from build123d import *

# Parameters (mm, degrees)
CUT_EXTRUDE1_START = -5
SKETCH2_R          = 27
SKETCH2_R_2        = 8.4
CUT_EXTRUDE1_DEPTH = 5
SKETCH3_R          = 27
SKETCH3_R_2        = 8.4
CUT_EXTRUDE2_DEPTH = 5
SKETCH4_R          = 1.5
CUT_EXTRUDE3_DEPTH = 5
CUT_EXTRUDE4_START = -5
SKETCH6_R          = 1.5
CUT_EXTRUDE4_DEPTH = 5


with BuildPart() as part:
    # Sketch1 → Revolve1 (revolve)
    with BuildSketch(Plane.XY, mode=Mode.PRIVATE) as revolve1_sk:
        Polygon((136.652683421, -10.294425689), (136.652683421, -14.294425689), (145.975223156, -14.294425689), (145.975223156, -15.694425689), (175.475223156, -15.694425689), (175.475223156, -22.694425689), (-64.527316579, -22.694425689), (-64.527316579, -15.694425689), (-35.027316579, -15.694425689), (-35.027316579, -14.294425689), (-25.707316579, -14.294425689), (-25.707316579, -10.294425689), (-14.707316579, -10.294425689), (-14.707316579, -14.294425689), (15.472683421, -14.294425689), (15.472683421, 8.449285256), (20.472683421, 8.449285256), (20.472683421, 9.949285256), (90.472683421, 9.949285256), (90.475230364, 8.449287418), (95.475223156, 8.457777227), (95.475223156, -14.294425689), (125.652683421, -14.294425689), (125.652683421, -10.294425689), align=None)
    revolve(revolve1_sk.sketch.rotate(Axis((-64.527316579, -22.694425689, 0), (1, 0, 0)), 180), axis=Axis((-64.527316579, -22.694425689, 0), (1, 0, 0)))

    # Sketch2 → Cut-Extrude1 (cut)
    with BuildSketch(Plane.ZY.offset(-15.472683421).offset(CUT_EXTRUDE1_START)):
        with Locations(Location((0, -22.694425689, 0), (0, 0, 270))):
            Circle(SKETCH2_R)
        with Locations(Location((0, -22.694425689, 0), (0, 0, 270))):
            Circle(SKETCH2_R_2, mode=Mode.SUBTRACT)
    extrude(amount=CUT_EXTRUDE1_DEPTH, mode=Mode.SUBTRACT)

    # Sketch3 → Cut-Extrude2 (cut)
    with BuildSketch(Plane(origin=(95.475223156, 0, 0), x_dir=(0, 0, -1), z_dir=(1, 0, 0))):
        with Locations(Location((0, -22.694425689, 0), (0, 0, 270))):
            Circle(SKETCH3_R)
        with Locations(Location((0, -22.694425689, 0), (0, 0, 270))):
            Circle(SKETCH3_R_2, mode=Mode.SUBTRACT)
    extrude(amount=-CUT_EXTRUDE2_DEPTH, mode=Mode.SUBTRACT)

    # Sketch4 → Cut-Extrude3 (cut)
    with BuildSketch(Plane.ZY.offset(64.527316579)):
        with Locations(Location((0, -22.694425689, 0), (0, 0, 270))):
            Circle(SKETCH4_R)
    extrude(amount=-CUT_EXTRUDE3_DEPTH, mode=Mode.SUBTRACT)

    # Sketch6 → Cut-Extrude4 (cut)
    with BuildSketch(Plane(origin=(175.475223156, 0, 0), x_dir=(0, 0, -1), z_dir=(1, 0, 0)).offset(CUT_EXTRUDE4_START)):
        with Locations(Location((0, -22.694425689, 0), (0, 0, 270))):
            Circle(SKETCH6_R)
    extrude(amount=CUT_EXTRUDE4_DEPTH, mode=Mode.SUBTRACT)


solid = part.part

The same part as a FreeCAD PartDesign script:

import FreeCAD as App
import Part
import Sketcher
from FreeCAD import Vector


def add_polygon(sketch, points):
    """Adds a closed chain of lines whose ends are joined by coincident constraints."""
    first, n = sketch.GeometryCount, len(points)
    for a, b in zip(points, points[1:] + points[:1]):
        sketch.addGeometry(Part.LineSegment(App.Vector(*a, 0), App.Vector(*b, 0)), False)
    for i in range(n):
        sketch.addConstraint(Sketcher.Constraint("Coincident", first + i, 2, first + (i + 1) % n, 1))

doc = App.newDocument("Part")
body = doc.addObject("PartDesign::Body", "Body")

# Sketch on XY plane
sketch1 = body.newObject("Sketcher::SketchObject", "Sketch")
sketch1.AttachmentSupport = (doc.getObject("XY_Plane"), [""])
sketch1.MapMode = "FlatFace"
add_polygon(sketch1, [(136.7, -14.3), (136.7, -10.3), (125.7, -10.3), (125.7, -14.3), (95.5, -14.3), (95.5, 8.5), (90.5, 8.4), (90.5, 9.9), (20.5, 9.9), (20.5, 8.4), (15.5, 8.4), (15.5, -14.3), (-14.7, -14.3), (-14.7, -10.3), (-25.7, -10.3), (-25.7, -14.3), (-35, -14.3), (-35, -15.7), (-64.5, -15.7), (-64.5, -22.7), (175.5, -22.7), (175.5, -15.7), (146, -15.7), (146, -14.3)])  # lines 0-23
sketch1.addGeometry(Part.LineSegment(Vector(-64.5, -22.7, 0), Vector(175.5, -22.7, 0)), True)  # axis
sketch1.addConstraint(Sketcher.Constraint("Vertical", 0))
sketch1.addConstraint(Sketcher.Constraint("Horizontal", 1))
sketch1.addConstraint(Sketcher.Constraint("Vertical", 2))
sketch1.addConstraint(Sketcher.Constraint("Horizontal", 3))
sketch1.addConstraint(Sketcher.Constraint("Vertical", 4))
sketch1.addConstraint(Sketcher.Constraint("Horizontal", 7))
sketch1.addConstraint(Sketcher.Constraint("Vertical", 8))
sketch1.addConstraint(Sketcher.Constraint("Horizontal", 9))
sketch1.addConstraint(Sketcher.Constraint("Vertical", 10))
sketch1.addConstraint(Sketcher.Constraint("Horizontal", 11))
sketch1.addConstraint(Sketcher.Constraint("Vertical", 12))
sketch1.addConstraint(Sketcher.Constraint("Horizontal", 13))
sketch1.addConstraint(Sketcher.Constraint("Vertical", 14))
sketch1.addConstraint(Sketcher.Constraint("Horizontal", 15))
sketch1.addConstraint(Sketcher.Constraint("Vertical", 16))
sketch1.addConstraint(Sketcher.Constraint("Horizontal", 17))
sketch1.addConstraint(Sketcher.Constraint("Vertical", 18))
sketch1.addConstraint(Sketcher.Constraint("Horizontal", 19))
sketch1.addConstraint(Sketcher.Constraint("Vertical", 20))
sketch1.addConstraint(Sketcher.Constraint("Horizontal", 21))
sketch1.addConstraint(Sketcher.Constraint("Vertical", 22))
sketch1.addConstraint(Sketcher.Constraint("Horizontal", 23))
sketch1.addConstraint(Sketcher.Constraint("Horizontal", 24))
sketch1.addConstraint(Sketcher.Constraint("Coincident", 24, 1, 18, 2))
sketch1.addConstraint(Sketcher.Constraint("Perpendicular", 5, 6))
sketch1.addConstraint(Sketcher.Constraint("Horizontal", 3, 2, 10, 2))
sketch1.addConstraint(Sketcher.Constraint("Horizontal", 1, 2, 12, 2))
sketch1.addConstraint(Sketcher.Constraint("Horizontal", 11, 2, 14, 2))
sketch1.addConstraint(Sketcher.Constraint("Horizontal", 17, 2, 20, 2))
sketch1.addConstraint(Sketcher.Constraint("Horizontal", 15, 2, 22, 2))
sketch1.addConstraint(Sketcher.Constraint("Vertical", 20, 2, 24, 2))
sketch1.addConstraint(Sketcher.Constraint("Equal", 1, 13))
sketch1.addConstraint(Sketcher.Constraint("Equal", 17, 21))
sketch1.addConstraint(Sketcher.Constraint("DistanceX", 1, 2, 1, 1, 11.0))
sketch1.addConstraint(Sketcher.Constraint("DistanceX", 7, 2, 7, 1, 70.0))
sketch1.addConstraint(Sketcher.Constraint("DistanceX", 9, 2, 9, 1, 5.0))
sketch1.addConstraint(Sketcher.Constraint("DistanceY", 0, 1, 0, 2, 4.0))
sketch1.addConstraint(Sketcher.Constraint("DistanceY", 18, 2, 18, 1, 7.0))
sketch1.addConstraint(Sketcher.Constraint("Distance", 5, 5.0))
sketch1.addConstraint(Sketcher.Constraint("DistanceX", 17, 2, 17, 1, 29.5))
sketch1.addConstraint(Sketcher.Constraint("DistanceY", 8, 2, 8, 1, 1.5))
sketch1.addConstraint(Sketcher.Constraint("DistanceY", 16, 2, 16, 1, 1.4))
sketch1.addConstraint(Sketcher.Constraint("DistanceX", 3, 2, 19, 2, 80.0))
sketch1.addConstraint(Sketcher.Constraint("Distance", 6, 1.5))
sketch1.addConstraint(Sketcher.Constraint("DistanceX", 11, 2, 11, 1, 30.18))
sketch1.addConstraint(Sketcher.Constraint("DistanceX", 15, 2, 15, 1, 9.32))
sketch1.addConstraint(Sketcher.Constraint("DistanceX", 6, 2, 1, 2, 35.18))
sketch1.addConstraint(Sketcher.Constraint("DistanceX", 3, 2, 3, 1, 30.17746))
sketch1.addConstraint(Sketcher.Constraint("DistanceY", 10, 2, 10, 1, 22.743711))
sketch1.addConstraint(Sketcher.Constraint("DistanceX", -1, 1, 5, 2, 90.47523))
sketch1.addConstraint(Sketcher.Constraint("DistanceY", 0, 2, -1, 1, 10.294426))
revolution = body.newObject("PartDesign::Revolution", "Revolution")
revolution.Profile = sketch1
revolution.ReferenceAxis = (sketch1, ["Axis0"])
revolution.Angle = 360

# Sketch on YZ plane
sketch2 = body.newObject("Sketcher::SketchObject", "Sketch001")
sketch2.AttachmentSupport = (doc.getObject("YZ_Plane"), [""])
sketch2.MapMode = "FlatFace"
sketch2.AttachmentOffset = App.Placement(Vector(0, 0, 20.472683), App.Rotation())
sketch2.addGeometry(Part.Circle(Vector(-23, 0, 0), Vector(0, 0, 1), 27), False)
sketch2.addGeometry(Part.Circle(Vector(-23, 0, 0), Vector(0, 0, 1), 8), False)
sketch2.addConstraint(Sketcher.Constraint("Coincident", 1, 3, 0, 3))
sketch2.addConstraint(Sketcher.Constraint("PointOnObject", 0, 3, -1))
sketch2.addConstraint(Sketcher.Constraint("Diameter", 0, 54.0))
sketch2.addConstraint(Sketcher.Constraint("Diameter", 1, 16.8))
sketch2.addConstraint(Sketcher.Constraint("DistanceX", 0, 3, -1, 1, 22.694426))
pocket1 = body.newObject("PartDesign::Pocket", "Pocket")
pocket1.Profile = sketch2
pocket1.Length = 5

# Sketch on YZ plane
sketch3 = body.newObject("Sketcher::SketchObject", "Sketch002")
sketch3.AttachmentSupport = (doc.getObject("YZ_Plane"), [""])
sketch3.MapMode = "FlatFace"
sketch3.AttachmentOffset = App.Placement(Vector(0, 0, 95.475223), App.Rotation())
sketch3.addGeometry(Part.Circle(Vector(-23, 0, 0), Vector(0, 0, 1), 27), False)
sketch3.addGeometry(Part.Circle(Vector(-23, 0, 0), Vector(0, 0, 1), 8), False)
sketch3.addConstraint(Sketcher.Constraint("Coincident", 1, 3, 0, 3))
sketch3.addConstraint(Sketcher.Constraint("PointOnObject", 0, 3, -1))
sketch3.addConstraint(Sketcher.Constraint("Diameter", 0, 54.0))
sketch3.addConstraint(Sketcher.Constraint("Diameter", 1, 16.8))
sketch3.addConstraint(Sketcher.Constraint("DistanceX", 0, 3, -1, 1, 22.694426))
pocket2 = body.newObject("PartDesign::Pocket", "Pocket001")
pocket2.Profile = sketch3
pocket2.Length = 5

# Sketch on YZ plane
sketch4 = body.newObject("Sketcher::SketchObject", "Sketch003")
sketch4.AttachmentSupport = (doc.getObject("YZ_Plane"), [""])
sketch4.MapMode = "FlatFace"
sketch4.AttachmentOffset = App.Placement(Vector(0, 0, -64.527317), App.Rotation())
sketch4.addGeometry(Part.Circle(Vector(-22.7, 0, 0), Vector(0, 0, 1), 1.5), False)
sketch4.addConstraint(Sketcher.Constraint("PointOnObject", 0, 3, -1))
sketch4.addConstraint(Sketcher.Constraint("Diameter", 0, 3.0))
sketch4.addConstraint(Sketcher.Constraint("DistanceX", 0, 3, -1, 1, 22.694426))
pocket3 = body.newObject("PartDesign::Pocket", "Pocket002")
pocket3.Profile = sketch4
pocket3.Length = 5
pocket3.Reversed = True

# Sketch on YZ plane
sketch5 = body.newObject("Sketcher::SketchObject", "Sketch004")
sketch5.AttachmentSupport = (doc.getObject("YZ_Plane"), [""])
sketch5.MapMode = "FlatFace"
sketch5.AttachmentOffset = App.Placement(Vector(0, 0, 170.475223), App.Rotation())
sketch5.addGeometry(Part.Circle(Vector(-22.7, 0, 0), Vector(0, 0, 1), 1.5), False)
sketch5.addConstraint(Sketcher.Constraint("PointOnObject", 0, 3, -1))
sketch5.addConstraint(Sketcher.Constraint("Diameter", 0, 3.0))
sketch5.addConstraint(Sketcher.Constraint("DistanceX", 0, 3, -1, 1, 22.694426))
pocket4 = body.newObject("PartDesign::Pocket", "Pocket003")
pocket4.Profile = sketch5
pocket4.Length = 5
pocket4.Reversed = True

doc.recompute()
